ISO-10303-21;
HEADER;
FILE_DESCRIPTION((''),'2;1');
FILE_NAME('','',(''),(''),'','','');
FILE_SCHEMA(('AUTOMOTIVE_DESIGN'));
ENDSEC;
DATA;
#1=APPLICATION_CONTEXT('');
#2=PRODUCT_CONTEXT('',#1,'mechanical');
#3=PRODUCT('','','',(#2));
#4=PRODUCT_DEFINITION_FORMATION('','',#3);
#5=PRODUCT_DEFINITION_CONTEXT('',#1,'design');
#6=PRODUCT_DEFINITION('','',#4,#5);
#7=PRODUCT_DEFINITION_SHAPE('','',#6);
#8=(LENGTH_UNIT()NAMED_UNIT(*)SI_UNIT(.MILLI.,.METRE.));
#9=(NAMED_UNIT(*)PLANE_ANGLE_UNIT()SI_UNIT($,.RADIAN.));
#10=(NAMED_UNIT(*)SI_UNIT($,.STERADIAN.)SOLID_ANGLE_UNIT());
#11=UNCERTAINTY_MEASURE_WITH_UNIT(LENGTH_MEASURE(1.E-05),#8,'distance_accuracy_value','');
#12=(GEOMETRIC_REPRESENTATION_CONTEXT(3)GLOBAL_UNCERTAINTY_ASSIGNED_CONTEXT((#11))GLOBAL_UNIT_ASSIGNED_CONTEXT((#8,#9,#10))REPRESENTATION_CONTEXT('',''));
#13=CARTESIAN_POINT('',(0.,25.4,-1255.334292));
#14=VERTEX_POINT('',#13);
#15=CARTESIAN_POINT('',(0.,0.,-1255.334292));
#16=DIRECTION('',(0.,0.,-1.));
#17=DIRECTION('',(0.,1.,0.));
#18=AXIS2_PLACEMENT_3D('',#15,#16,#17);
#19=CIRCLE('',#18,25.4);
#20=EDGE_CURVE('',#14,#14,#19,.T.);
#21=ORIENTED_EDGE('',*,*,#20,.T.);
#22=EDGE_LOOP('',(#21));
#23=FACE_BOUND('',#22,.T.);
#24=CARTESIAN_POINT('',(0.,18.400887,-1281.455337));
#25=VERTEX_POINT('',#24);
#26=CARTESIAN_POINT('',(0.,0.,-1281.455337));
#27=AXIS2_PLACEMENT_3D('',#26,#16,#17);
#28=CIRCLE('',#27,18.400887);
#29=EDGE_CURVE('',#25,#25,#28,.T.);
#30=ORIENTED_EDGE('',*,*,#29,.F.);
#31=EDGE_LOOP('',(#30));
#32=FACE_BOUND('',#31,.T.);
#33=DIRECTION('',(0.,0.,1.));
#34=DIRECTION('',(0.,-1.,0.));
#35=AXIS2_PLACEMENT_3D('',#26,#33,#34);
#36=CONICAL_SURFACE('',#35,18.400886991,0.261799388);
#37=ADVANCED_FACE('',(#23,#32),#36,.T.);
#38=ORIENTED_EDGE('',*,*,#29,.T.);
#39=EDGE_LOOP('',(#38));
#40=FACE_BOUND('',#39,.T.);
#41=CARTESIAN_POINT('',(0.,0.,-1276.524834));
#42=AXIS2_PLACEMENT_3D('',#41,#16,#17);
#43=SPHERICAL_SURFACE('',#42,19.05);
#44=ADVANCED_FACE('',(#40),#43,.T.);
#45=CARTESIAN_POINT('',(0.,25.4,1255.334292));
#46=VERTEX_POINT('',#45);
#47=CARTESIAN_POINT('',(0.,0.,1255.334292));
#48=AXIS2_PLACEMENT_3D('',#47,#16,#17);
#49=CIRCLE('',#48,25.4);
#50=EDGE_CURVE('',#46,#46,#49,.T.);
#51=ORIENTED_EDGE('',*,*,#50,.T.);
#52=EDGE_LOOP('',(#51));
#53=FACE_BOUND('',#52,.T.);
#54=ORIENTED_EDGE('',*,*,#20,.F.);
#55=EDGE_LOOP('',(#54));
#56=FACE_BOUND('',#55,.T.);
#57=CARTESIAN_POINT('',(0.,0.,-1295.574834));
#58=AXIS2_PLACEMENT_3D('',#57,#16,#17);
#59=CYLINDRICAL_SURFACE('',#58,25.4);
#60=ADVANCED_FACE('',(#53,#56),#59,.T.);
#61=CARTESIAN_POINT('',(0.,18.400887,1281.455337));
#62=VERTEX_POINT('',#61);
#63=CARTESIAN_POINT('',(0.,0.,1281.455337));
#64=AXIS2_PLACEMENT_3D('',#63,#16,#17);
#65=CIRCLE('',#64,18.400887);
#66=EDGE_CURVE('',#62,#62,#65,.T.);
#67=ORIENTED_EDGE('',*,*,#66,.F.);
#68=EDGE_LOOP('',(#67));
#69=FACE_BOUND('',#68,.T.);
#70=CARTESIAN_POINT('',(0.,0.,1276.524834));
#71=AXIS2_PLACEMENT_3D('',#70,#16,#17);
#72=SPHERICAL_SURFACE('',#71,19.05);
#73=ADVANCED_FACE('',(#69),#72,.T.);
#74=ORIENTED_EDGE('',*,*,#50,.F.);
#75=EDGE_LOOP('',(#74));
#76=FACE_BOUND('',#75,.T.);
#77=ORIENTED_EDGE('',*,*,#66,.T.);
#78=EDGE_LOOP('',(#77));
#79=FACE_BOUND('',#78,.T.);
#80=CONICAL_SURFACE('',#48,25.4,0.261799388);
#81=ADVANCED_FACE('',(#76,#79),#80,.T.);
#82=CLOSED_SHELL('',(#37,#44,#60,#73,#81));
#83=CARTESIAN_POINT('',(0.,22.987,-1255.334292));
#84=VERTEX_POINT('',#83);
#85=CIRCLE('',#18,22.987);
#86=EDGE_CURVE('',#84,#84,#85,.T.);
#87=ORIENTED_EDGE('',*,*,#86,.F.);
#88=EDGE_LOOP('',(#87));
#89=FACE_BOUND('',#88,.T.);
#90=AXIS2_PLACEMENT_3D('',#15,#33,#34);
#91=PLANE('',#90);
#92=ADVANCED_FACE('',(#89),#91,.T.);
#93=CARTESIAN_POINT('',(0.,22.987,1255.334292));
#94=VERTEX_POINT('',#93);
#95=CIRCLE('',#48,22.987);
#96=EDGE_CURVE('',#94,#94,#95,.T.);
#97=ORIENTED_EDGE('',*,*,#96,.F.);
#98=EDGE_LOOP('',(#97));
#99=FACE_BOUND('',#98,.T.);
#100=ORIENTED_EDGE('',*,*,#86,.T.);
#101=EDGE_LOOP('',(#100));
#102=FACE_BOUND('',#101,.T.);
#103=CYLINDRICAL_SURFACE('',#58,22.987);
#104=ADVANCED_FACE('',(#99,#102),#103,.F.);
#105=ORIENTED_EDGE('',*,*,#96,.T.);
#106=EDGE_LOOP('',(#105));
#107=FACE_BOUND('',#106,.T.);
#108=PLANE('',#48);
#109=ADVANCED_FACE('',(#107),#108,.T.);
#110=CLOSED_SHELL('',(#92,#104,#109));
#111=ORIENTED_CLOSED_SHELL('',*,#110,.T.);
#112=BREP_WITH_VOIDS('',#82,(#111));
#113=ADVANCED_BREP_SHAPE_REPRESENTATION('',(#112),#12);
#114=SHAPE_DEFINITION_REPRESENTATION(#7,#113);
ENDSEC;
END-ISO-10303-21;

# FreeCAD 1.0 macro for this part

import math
import FreeCAD as App
import Part
import Sketcher

V = App.Vector
Q = App.Units.Quantity

doc = App.newDocument("Part")
body = doc.addObject("PartDesign::Body", "Body")

sketch1 = body.newObject("Sketcher::SketchObject", "Sketch")
sketch1.AttachmentSupport = (doc.getObject("YZ_Plane"), [""])
sketch1.MapMode = "FlatFace"
sketch1.addGeometry([
    Part.LineSegment(V(18, -1281, 0), V(25, -1255, 0)),
    Part.LineSegment(V(25, -1255, 0), V(25, 1255, 0)),
    Part.LineSegment(V(25, 1255, 0), V(18, 1281, 0)),
    Part.ArcOfCircle(Part.Circle(V(0, 1277, 0), V(0, 0, 1), 19), math.radians(15), math.radians(90)),
    Part.LineSegment(V(0, 1296, 0), V(0, 1255, 0)),
    Part.LineSegment(V(0, 1255, 0), V(23, 1255, 0)),
    Part.LineSegment(V(23, 1255, 0), V(23, -1255, 0)),
    Part.LineSegment(V(23, -1255, 0), V(0, -1255, 0)),
    Part.LineSegment(V(0, -1255, 0), V(0, -1296, 0)),
    Part.ArcOfCircle(Part.Circle(V(0, -1277, 0), V(0, 0, 1), 19), math.radians(-90), math.radians(-15)),
], False)
sketch1.addConstraint([
    Sketcher.Constraint("Coincident", 0, 2, 1, 1),
    Sketcher.Constraint("Coincident", 1, 2, 2, 1),
    Sketcher.Constraint("Tangent", 2, 2, 3, 1),
    Sketcher.Constraint("Coincident", 3, 2, 4, 1),
    Sketcher.Constraint("Coincident", 4, 2, 5, 1),
    Sketcher.Constraint("Coincident", 5, 2, 6, 1),
    Sketcher.Constraint("Coincident", 6, 2, 7, 1),
    Sketcher.Constraint("Coincident", 7, 2, 8, 1),
    Sketcher.Constraint("Coincident", 8, 2, 9, 1),
    Sketcher.Constraint("Tangent", 9, 2, 0, 1),
    Sketcher.Constraint("Vertical", 1),
    Sketcher.Constraint("Vertical", 4),
    Sketcher.Constraint("Horizontal", 5),
    Sketcher.Constraint("Vertical", 6),
    Sketcher.Constraint("Horizontal", 7),
    Sketcher.Constraint("Vertical", 8),
    Sketcher.Constraint("Equal", 3, 9),
    Sketcher.Constraint("Symmetric", 3, 3, 9, 3, -1, 1),
    Sketcher.Constraint("Symmetric", 4, 2, 7, 2, -1, 1),
    Sketcher.Constraint("Symmetric", 2, 2, 9, 2, -1),
    Sketcher.Constraint("PointOnObject", 3, 2, -2),
    Sketcher.Constraint("Horizontal", 1, 2, 4, 2),
    Sketcher.Constraint("Radius", 3, Q("0.75 in")),
    Sketcher.Constraint("DistanceX", -1, 1, 0, 2, Q("1 in")),
    Sketcher.Constraint("Angle", 0, Q("75 deg")),
    Sketcher.Constraint("DistanceX", 5, 1, 5, 2, Q("0.905 in")),
    Sketcher.Constraint("DistanceY", 1, 1, 1, 2, 2510.668584),
])
revolution = body.newObject("PartDesign::Revolution", "Revolution")
revolution.Profile = sketch1
revolution.ReferenceAxis = (sketch1, ["V_Axis"])
revolution.Angle = 360

doc.recompute()
